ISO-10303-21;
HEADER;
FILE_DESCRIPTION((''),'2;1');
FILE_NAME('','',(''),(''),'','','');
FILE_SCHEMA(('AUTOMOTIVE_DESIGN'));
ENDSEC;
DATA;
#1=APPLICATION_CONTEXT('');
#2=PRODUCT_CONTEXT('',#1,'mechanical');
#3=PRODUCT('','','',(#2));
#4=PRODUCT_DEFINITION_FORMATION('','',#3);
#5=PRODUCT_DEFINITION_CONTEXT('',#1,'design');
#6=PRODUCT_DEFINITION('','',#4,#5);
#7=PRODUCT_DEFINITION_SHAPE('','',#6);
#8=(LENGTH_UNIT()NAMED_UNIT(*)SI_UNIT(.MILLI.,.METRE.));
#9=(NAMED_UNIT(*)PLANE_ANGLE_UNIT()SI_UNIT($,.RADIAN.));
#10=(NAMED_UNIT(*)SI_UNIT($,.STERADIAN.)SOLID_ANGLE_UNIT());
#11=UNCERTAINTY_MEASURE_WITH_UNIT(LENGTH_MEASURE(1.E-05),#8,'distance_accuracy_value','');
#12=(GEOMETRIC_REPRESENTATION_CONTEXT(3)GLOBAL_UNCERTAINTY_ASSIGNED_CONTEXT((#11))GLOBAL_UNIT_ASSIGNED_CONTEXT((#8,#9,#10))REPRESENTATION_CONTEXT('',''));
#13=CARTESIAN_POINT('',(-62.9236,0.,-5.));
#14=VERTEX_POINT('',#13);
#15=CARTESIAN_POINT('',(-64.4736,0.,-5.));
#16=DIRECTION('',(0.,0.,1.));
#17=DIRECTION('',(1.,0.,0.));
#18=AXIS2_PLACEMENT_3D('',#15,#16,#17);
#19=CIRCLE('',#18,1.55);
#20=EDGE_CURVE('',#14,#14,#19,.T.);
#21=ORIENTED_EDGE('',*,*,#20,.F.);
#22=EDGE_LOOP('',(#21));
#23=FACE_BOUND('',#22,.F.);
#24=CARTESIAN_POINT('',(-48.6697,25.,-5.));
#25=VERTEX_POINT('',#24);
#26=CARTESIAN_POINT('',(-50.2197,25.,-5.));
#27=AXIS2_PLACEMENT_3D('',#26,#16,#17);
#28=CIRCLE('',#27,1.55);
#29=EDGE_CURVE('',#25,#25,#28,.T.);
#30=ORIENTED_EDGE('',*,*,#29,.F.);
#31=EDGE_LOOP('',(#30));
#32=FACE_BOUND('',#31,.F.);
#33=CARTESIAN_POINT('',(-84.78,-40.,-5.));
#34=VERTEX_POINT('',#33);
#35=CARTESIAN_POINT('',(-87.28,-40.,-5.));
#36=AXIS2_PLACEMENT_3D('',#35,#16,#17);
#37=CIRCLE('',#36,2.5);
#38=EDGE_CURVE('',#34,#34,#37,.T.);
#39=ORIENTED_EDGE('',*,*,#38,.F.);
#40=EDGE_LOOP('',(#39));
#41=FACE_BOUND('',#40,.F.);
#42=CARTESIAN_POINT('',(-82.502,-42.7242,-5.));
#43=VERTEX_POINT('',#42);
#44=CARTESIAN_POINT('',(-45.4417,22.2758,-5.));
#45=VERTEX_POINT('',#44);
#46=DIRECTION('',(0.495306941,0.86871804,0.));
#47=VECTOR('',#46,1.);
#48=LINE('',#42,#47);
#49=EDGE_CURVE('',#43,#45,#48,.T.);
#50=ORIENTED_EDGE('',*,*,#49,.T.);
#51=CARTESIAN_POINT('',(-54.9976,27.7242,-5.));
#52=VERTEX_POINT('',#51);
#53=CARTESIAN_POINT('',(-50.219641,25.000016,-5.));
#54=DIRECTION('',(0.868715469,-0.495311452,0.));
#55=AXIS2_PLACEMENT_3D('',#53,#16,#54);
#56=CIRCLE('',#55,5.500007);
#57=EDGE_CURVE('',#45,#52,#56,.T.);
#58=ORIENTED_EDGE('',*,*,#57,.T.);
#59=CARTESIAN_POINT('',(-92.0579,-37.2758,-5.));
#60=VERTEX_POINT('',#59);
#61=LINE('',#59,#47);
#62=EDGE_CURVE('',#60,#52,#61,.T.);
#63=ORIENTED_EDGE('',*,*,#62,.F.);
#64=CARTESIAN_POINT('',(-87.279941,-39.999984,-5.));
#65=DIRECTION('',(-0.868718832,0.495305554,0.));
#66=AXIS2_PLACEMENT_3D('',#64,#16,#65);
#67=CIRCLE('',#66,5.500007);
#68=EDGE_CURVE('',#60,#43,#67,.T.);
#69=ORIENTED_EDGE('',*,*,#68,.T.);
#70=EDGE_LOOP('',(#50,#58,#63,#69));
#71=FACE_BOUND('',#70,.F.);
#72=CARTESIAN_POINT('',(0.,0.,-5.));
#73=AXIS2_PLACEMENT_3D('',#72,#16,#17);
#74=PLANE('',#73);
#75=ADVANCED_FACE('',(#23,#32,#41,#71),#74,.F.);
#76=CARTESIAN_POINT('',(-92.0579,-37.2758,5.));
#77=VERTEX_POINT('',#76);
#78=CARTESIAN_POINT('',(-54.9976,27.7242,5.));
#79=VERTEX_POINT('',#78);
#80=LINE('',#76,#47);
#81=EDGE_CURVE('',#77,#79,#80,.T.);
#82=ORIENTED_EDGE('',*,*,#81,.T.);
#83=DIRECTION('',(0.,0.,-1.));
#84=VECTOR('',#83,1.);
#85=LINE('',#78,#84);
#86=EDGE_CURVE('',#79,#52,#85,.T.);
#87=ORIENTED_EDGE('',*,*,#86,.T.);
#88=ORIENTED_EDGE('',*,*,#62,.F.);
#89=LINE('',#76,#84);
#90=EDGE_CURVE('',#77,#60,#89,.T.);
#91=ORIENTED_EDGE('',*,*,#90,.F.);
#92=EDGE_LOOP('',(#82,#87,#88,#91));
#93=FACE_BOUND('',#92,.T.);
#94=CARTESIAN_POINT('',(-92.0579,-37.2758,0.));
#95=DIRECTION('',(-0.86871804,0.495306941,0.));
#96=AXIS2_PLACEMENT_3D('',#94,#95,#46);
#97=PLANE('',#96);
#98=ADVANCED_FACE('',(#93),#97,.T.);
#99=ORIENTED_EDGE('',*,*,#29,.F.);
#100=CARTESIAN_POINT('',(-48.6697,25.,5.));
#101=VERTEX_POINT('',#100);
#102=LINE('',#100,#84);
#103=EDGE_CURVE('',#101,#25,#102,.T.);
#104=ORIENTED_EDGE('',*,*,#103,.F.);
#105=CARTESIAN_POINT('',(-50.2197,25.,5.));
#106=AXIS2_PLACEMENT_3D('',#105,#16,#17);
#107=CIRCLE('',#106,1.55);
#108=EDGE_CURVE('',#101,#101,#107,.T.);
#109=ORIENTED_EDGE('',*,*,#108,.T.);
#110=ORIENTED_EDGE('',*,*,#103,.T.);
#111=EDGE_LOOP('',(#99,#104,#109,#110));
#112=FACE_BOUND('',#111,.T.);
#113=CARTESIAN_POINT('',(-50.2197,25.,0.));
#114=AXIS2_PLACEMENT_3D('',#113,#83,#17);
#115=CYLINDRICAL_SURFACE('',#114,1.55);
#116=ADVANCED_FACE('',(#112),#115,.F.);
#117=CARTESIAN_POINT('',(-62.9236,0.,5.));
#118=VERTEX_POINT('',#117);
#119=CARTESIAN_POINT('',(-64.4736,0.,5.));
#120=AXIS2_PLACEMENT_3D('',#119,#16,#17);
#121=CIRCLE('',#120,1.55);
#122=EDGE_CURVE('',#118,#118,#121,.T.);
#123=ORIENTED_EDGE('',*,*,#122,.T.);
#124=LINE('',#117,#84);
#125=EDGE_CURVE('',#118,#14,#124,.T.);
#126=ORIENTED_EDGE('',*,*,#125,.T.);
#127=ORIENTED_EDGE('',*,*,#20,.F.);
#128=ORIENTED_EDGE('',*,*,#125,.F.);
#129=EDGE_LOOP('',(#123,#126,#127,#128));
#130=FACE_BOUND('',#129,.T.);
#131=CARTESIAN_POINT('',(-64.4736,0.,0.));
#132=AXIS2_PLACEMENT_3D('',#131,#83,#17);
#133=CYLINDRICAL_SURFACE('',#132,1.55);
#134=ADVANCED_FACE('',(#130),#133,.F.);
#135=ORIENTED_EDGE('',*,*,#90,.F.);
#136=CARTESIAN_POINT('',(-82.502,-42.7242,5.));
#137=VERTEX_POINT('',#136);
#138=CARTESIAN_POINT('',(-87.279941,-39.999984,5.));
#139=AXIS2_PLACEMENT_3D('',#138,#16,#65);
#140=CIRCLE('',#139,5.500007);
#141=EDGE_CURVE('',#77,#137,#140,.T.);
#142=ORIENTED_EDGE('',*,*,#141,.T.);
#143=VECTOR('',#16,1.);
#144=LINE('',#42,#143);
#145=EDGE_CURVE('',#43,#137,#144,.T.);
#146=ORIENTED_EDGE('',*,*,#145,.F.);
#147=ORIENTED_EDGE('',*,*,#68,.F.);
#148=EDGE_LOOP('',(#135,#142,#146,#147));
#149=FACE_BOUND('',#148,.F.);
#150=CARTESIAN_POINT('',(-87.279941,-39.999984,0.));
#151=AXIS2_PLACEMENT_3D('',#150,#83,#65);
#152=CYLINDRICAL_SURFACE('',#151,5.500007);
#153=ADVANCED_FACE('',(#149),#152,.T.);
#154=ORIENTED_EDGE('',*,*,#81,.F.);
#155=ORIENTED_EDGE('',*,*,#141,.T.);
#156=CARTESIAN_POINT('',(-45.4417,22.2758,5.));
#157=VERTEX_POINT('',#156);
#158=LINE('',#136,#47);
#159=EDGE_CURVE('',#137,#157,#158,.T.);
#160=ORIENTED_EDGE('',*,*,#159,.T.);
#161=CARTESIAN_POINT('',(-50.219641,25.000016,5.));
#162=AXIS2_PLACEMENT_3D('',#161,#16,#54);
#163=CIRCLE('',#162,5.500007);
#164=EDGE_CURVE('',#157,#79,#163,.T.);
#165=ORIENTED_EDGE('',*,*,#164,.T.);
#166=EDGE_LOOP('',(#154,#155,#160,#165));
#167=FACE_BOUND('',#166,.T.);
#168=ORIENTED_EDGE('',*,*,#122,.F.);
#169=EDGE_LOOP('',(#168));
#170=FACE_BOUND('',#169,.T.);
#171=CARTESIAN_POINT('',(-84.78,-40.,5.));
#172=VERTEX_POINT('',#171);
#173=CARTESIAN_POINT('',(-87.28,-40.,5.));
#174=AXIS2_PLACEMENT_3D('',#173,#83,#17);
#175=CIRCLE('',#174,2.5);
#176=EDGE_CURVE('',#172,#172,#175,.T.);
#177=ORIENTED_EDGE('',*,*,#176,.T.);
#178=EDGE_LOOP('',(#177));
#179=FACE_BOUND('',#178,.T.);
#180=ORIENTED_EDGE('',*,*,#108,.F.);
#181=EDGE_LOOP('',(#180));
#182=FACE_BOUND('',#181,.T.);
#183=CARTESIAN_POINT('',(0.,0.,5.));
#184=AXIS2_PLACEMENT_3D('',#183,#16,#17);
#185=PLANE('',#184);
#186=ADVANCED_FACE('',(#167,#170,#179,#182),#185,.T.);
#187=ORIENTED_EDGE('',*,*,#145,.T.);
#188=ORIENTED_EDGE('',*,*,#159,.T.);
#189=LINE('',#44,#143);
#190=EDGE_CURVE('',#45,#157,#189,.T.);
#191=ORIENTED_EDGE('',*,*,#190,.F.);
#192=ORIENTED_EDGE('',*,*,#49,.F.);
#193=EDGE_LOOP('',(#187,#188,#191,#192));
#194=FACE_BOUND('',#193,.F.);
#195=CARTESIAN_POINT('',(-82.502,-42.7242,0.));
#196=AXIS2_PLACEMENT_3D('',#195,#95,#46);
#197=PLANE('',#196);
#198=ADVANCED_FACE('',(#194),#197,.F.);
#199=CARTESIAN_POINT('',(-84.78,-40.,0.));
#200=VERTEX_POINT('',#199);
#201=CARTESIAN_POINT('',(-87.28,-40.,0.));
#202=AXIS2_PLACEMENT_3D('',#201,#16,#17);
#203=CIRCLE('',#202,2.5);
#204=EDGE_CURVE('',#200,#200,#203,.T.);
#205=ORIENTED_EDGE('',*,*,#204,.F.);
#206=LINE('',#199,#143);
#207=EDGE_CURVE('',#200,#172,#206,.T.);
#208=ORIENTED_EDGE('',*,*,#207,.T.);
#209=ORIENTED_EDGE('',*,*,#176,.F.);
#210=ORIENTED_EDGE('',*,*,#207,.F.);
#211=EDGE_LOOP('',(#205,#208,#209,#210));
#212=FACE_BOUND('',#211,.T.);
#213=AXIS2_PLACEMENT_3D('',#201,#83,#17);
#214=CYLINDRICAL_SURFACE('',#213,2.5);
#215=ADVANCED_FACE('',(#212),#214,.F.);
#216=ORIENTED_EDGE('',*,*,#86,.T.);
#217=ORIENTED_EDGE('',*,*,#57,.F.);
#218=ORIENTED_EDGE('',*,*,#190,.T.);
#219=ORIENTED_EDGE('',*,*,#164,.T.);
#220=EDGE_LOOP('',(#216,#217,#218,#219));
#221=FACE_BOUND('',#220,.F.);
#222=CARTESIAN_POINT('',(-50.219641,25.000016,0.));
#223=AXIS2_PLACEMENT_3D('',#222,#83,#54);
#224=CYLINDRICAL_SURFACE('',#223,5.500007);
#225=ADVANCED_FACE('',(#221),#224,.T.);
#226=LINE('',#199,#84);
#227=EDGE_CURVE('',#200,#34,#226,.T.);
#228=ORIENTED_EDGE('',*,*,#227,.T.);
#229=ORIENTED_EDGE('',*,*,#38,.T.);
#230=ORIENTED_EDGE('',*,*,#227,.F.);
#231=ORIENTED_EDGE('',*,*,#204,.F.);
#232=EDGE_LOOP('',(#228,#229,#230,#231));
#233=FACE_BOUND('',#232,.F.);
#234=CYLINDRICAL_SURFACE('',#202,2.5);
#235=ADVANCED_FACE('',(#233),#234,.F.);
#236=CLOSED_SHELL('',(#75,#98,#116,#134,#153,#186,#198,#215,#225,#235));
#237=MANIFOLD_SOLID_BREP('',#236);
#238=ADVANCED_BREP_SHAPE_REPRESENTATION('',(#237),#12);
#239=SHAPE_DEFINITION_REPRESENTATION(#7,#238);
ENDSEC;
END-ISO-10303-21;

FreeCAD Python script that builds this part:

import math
import FreeCAD as App
import Part
import Sketcher

V = App.Vector
Q = App.Units.Quantity

doc = App.newDocument("Part")
params = doc.addObject("Spreadsheet::Sheet", "Params")
for row, (alias, value) in enumerate([
    ("sketch1_diameter", "3.1 mm"),
    ("sketch1_radius", "5.5 mm"),
    ("pad1_length", "10 mm"),
    ("sketch2_diameter", "5 mm"),
], start=1):
    params.set(f"A{row}", alias)
    params.set(f"B{row}", "=" + value)
    params.setAlias(f"B{row}", alias)

body = doc.addObject("PartDesign::Body", "Body")

# Sketch on XY plane
sketch1 = body.newObject("Sketcher::SketchObject", "Sketch")
sketch1.AttachmentSupport = (doc.getObject("XY_Plane"), [""])
sketch1.MapMode = "FlatFace"
sketch1.addGeometry(Part.ArcOfCircle(Part.Circle(V(-87.28, -40, 0), V(0, 0, 1), 5.499963), math.radians(150.309647), math.radians(330.310163)), False)
sketch1.addGeometry(Part.LineSegment(V(-82.502, -42.7242, 0), V(-45.4417, 22.2758, 0)), False)
sketch1.addGeometry(Part.ArcOfCircle(Part.Circle(V(-50.2197, 25, 0), V(0, 0, 1), 5.499963), math.radians(-29.689837), math.radians(150.309647)), False)
sketch1.addGeometry(Part.LineSegment(V(-54.9976, 27.7242, 0), V(-92.0579, -37.2758, 0)), False)
sketch1.addGeometry(Part.Circle(V(-50.2197, 25, 0), V(0, 0, 1), 1.55), False)
sketch1.addGeometry(Part.Circle(V(-64.4736, 0, 0), V(0, 0, 1), 1.55), False)
sketch1.addConstraint(Sketcher.Constraint("Tangent", 0, 2, 1, 1))
sketch1.addConstraint(Sketcher.Constraint("Tangent", 1, 2, 2, 1))
sketch1.addConstraint(Sketcher.Constraint("Tangent", 2, 2, 3, 1))
sketch1.addConstraint(Sketcher.Constraint("Tangent", 3, 2, 0, 1))
sketch1.addConstraint(Sketcher.Constraint("Coincident", 4, 3, 2, 3))
sketch1.addConstraint(Sketcher.Constraint("Equal", 0, 2))
sketch1.addConstraint(Sketcher.Constraint("Equal", 4, 5))
sketch1.addConstraint(Sketcher.Constraint("PointOnObject", 5, 3, -1))
sketch1.addConstraint(Sketcher.Constraint("Diameter", 4, 3.1))
sketch1.addConstraint(Sketcher.Constraint("Radius", 0, 5.5))
sketch1.addConstraint(Sketcher.Constraint("DistanceY", 0, 3, -1, 1, 40.0))
sketch1.addConstraint(Sketcher.Constraint("DistanceY", -1, 1, 2, 3, 25.0))
sketch1.addConstraint(Sketcher.Constraint("Angle", 1, Q("60.31 deg")))
sketch1.addConstraint(Sketcher.Constraint("DistanceX", 0, 3, -1, 1, 87.28))
sketch1.addConstraint(Sketcher.Constraint("DistanceX", 5, 3, 2, 3, 14.254))
sketch1.setExpression("Constraints[8]", "Params.sketch1_diameter")
sketch1.setExpression("Constraints[9]", "Params.sketch1_radius")
pad1 = body.newObject("PartDesign::Pad", "Pad")
pad1.Profile = sketch1
pad1.setExpression("Length", "Params.pad1_length")
pad1.Midplane = True

# Sketch on XY plane
sketch2 = body.newObject("Sketcher::SketchObject", "Sketch001")
sketch2.AttachmentSupport = (doc.getObject("XY_Plane"), [""])
sketch2.MapMode = "FlatFace"
sketch2.addGeometry(Part.Circle(V(-87.28, -40, 0), V(0, 0, 1), 2.5), False)
sketch2.addConstraint(Sketcher.Constraint("Diameter", 0, 5.0))
sketch2.addConstraint(Sketcher.Constraint("DistanceY", 0, 3, -1, 1, 40.0))
sketch2.addConstraint(Sketcher.Constraint("DistanceX", 0, 3, -1, 1, 87.28))
sketch2.setExpression("Constraints[0]", "Params.sketch2_diameter")
pocket1 = body.newObject("PartDesign::Pocket", "Pocket")
pocket1.Profile = sketch2
pocket1.Type = "ThroughAll"
pocket1.Midplane = True

doc.recompute()
